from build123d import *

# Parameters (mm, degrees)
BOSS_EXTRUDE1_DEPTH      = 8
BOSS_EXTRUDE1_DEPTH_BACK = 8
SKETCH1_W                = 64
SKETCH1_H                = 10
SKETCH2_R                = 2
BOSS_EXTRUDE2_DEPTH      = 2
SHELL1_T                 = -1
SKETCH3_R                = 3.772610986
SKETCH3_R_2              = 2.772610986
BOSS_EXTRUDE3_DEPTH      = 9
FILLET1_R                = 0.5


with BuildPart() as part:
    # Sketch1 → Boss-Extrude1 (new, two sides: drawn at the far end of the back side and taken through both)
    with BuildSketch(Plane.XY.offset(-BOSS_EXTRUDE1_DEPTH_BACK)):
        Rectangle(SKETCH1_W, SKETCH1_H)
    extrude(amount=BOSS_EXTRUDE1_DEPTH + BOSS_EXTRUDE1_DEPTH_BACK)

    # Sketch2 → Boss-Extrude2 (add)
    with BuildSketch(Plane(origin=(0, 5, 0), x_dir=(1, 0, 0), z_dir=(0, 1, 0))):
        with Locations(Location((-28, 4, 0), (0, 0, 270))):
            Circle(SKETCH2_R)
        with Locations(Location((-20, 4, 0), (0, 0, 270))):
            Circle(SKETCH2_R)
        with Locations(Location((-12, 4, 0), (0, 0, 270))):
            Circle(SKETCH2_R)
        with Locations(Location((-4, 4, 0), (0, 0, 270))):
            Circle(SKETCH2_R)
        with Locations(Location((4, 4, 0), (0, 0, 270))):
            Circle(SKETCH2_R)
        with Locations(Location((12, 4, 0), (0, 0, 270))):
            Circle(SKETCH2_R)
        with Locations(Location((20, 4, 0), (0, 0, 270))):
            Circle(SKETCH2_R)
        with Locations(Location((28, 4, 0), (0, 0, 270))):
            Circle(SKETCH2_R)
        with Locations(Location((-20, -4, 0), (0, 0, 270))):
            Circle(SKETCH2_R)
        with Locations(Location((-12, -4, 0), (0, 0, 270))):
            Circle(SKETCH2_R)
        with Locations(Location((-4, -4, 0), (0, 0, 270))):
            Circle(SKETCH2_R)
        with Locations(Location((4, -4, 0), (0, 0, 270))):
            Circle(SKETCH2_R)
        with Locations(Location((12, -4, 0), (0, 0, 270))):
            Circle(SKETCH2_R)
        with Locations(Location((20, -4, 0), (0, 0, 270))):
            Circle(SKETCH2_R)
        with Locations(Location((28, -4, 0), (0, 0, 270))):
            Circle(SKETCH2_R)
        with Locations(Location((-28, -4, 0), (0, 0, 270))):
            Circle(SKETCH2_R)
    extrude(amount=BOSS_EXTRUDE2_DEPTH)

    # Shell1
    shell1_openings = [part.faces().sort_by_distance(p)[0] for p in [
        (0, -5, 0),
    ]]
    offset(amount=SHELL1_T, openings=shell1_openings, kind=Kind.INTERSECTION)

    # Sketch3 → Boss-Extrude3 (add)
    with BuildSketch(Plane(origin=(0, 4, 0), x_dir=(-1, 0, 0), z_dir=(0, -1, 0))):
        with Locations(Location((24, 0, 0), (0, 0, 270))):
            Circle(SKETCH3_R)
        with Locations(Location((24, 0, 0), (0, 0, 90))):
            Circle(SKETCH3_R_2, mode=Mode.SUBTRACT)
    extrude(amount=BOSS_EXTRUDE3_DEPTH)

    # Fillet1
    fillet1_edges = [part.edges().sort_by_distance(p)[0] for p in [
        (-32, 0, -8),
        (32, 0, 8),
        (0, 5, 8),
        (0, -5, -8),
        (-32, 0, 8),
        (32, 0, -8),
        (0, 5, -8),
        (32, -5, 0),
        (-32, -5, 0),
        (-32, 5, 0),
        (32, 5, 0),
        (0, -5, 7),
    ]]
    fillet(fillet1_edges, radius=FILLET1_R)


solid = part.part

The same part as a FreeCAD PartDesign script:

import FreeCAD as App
import Part
import Sketcher
Q = App.Units.Quantity


def edges_at(feature, points):
    """Names of the edges that pass closest to the given points."""
    edges = feature.Shape.Edges
    near = lambda p: min(range(len(edges)), key=lambda i: edges[i].distToShape(Part.Vertex(*p))[0])
    return sorted({f"Edge{near(p) + 1}" for p in points})


def faces_at(feature, points):
    """Names of the faces that lie closest to the given points."""
    faces = feature.Shape.Faces
    near = lambda p: min(range(len(faces)), key=lambda i: faces[i].distToShape(Part.Vertex(*p))[0])
    return sorted({f"Face{near(p) + 1}" for p in points})

doc = App.newDocument("Part")
body = doc.addObject("PartDesign::Body", "Body")

# Sketch on XY plane
sketch1 = body.newObject("Sketcher::SketchObject", "Sketch")
sketch1.AttachmentSupport = (doc.getObject("XY_Plane"), [""])
sketch1.MapMode = "FlatFace"
sketch1.addGeometry([
    Part.LineSegment(App.Vector(-32, 5, 0), App.Vector(-32, -5, 0)),
    Part.LineSegment(App.Vector(-32, -5, 0), App.Vector(32, -5, 0)),
    Part.LineSegment(App.Vector(32, -5, 0), App.Vector(32, 5, 0)),
    Part.LineSegment(App.Vector(32, 5, 0), App.Vector(-32, 5, 0)),
], False)
sketch1.addConstraint([
    Sketcher.Constraint("Coincident", 0, 2, 1, 1),
    Sketcher.Constraint("Coincident", 1, 2, 2, 1),
    Sketcher.Constraint("Coincident", 2, 2, 3, 1),
    Sketcher.Constraint("Coincident", 3, 2, 0, 1),
    Sketcher.Constraint("Vertical", 0),
    Sketcher.Constraint("Horizontal", 1),
    Sketcher.Constraint("Vertical", 2),
    Sketcher.Constraint("Horizontal", 3),
    Sketcher.Constraint("Symmetric", 0, 2, 2, 2, -1, 1),
    Sketcher.Constraint("DistanceX", 1, 1, 1, 2, Q("64 mm")),
    Sketcher.Constraint("DistanceY", 0, 2, 0, 1, Q("10 mm")),
])
pad1 = body.newObject("PartDesign::Pad", "Pad")
pad1.Profile = sketch1
pad1.Type = "TwoLengths"
pad1.Length = 8
pad1.Length2 = 8

# Sketch on XZ plane
sketch2 = body.newObject("Sketcher::SketchObject", "Sketch001")
sketch2.AttachmentSupport = (doc.getObject("XZ_Plane"), [""])
sketch2.MapMode = "FlatFace"
sketch2.AttachmentOffset = App.Placement(App.Vector(0, 0, -5), App.Rotation())
sketch2.addGeometry([
    Part.Circle(App.Vector(-28, -4, 0), App.Vector(0, 0, 1), 2),  # 0
    Part.Circle(App.Vector(-20, -4, 0), App.Vector(0, 0, 1), 2),  # 1
    Part.Circle(App.Vector(-12, -4, 0), App.Vector(0, 0, 1), 2),  # 2
    Part.Circle(App.Vector(-4, -4, 0), App.Vector(0, 0, 1), 2),  # 3
    Part.Circle(App.Vector(4, -4, 0), App.Vector(0, 0, 1), 2),  # 4
    Part.Circle(App.Vector(12, -4, 0), App.Vector(0, 0, 1), 2),  # 5
    Part.Circle(App.Vector(20, -4, 0), App.Vector(0, 0, 1), 2),  # 6
    Part.Circle(App.Vector(28, -4, 0), App.Vector(0, 0, 1), 2),  # 7
    Part.Circle(App.Vector(-20, 4, 0), App.Vector(0, 0, 1), 2),  # 8
    Part.Circle(App.Vector(-12, 4, 0), App.Vector(0, 0, 1), 2),  # 9
    Part.Circle(App.Vector(-4, 4, 0), App.Vector(0, 0, 1), 2),  # 10
    Part.Circle(App.Vector(4, 4, 0), App.Vector(0, 0, 1), 2),  # 11
    Part.Circle(App.Vector(12, 4, 0), App.Vector(0, 0, 1), 2),  # 12
    Part.Circle(App.Vector(20, 4, 0), App.Vector(0, 0, 1), 2),  # 13
    Part.Circle(App.Vector(28, 4, 0), App.Vector(0, 0, 1), 2),  # 14
    Part.Circle(App.Vector(-28, 4, 0), App.Vector(0, 0, 1), 2),  # 15
], False)
sketch2.addConstraint([
    Sketcher.Constraint("Equal", 0, 1),
    Sketcher.Constraint("Equal", 1, 2),
    Sketcher.Constraint("Equal", 2, 3),
    Sketcher.Constraint("Equal", 3, 4),
    Sketcher.Constraint("Equal", 4, 5),
    Sketcher.Constraint("Equal", 5, 6),
    Sketcher.Constraint("Equal", 6, 7),
    Sketcher.Constraint("Equal", 7, 8),
    Sketcher.Constraint("Equal", 8, 9),
    Sketcher.Constraint("Equal", 9, 10),
    Sketcher.Constraint("Equal", 10, 11),
    Sketcher.Constraint("Equal", 11, 12),
    Sketcher.Constraint("Equal", 12, 13),
    Sketcher.Constraint("Equal", 13, 14),
    Sketcher.Constraint("Equal", 14, 15),
    Sketcher.Constraint("Symmetric", 6, 3, 8, 3, -1, 1),
    Sketcher.Constraint("Symmetric", 5, 3, 9, 3, -1, 1),
    Sketcher.Constraint("Symmetric", 4, 3, 10, 3, -1, 1),
    Sketcher.Constraint("Symmetric", 3, 3, 11, 3, -1, 1),
    Sketcher.Constraint("Symmetric", 2, 3, 12, 3, -1, 1),
    Sketcher.Constraint("Symmetric", 1, 3, 13, 3, -1, 1),
    Sketcher.Constraint("Symmetric", 0, 3, 14, 3, -1, 1),
    Sketcher.Constraint("Symmetric", 7, 3, 15, 3, -1, 1),
    Sketcher.Constraint("Symmetric", 3, 3, 4, 3, -2),
    Sketcher.Constraint("Symmetric", 2, 3, 5, 3, -2),
    Sketcher.Constraint("Symmetric", 1, 3, 6, 3, -2),
    Sketcher.Constraint("Symmetric", 0, 3, 7, 3, -2),
    Sketcher.Constraint("Horizontal", 0, 3, 1, 3),
    Sketcher.Constraint("Horizontal", 1, 3, 2, 3),
    Sketcher.Constraint("Horizontal", 2, 3, 3, 3),
    Sketcher.Constraint("Diameter", 0, Q("4 mm")),
    Sketcher.Constraint("DistanceX", 0, 3, -1, 1, Q("28 mm")),
    Sketcher.Constraint("DistanceY", 0, 3, -1, 1, Q("4 mm")),
    Sketcher.Constraint("DistanceX", 1, 3, -1, 1, Q("20 mm")),
    Sketcher.Constraint("DistanceX", 2, 3, -1, 1, Q("12 mm")),
    Sketcher.Constraint("DistanceX", 3, 3, -1, 1, Q("4 mm")),
])
pad2 = body.newObject("PartDesign::Pad", "Pad001")
pad2.Profile = sketch2
pad2.Length = 2
pad2.Reversed = True
doc.recompute()

thickness = body.newObject("PartDesign::Thickness", "Thickness")
thickness.Base = (pad2, faces_at(pad2, [(0, -5, 0)]))
thickness.Value = 1
thickness.Reversed = True
thickness.Join = "Intersection"

# Sketch on XZ plane
sketch3 = body.newObject("Sketcher::SketchObject", "Sketch002")
sketch3.AttachmentSupport = (doc.getObject("XZ_Plane"), [""])
sketch3.MapMode = "FlatFace"
sketch3.AttachmentOffset = App.Placement(App.Vector(0, 0, -4), App.Rotation())
sketch3.addGeometry([
    Part.Circle(App.Vector(-24, 0, 0), App.Vector(0, 0, 1), 3.772611),
    Part.Circle(App.Vector(-24, 0, 0), App.Vector(0, 0, 1), 2.772611),
], False)
sketch3.addConstraint([
    Sketcher.Constraint("Coincident", 1, 3, 0, 3),
    Sketcher.Constraint("PointOnObject", 0, 3, -1),
    Sketcher.Constraint("DistanceX", 0, 3, -1, 1, Q("24 mm")),
    Sketcher.Constraint("Diameter", 0, Q("7.545222 mm")),
    Sketcher.Constraint("Diameter", 1, Q("5.545222 mm")),
])
pad3 = body.newObject("PartDesign::Pad", "Pad002")
pad3.Profile = sketch3
pad3.Length = 9
doc.recompute()

fillet = body.newObject("PartDesign::Fillet", "Fillet")
fillet.Base = (pad3, edges_at(pad3, [
    (-32, 0, -8),
    (32, 0, 8),
    (0, 5, 8),
    (0, -5, -8),
    (-32, 0, 8),
    (32, 0, -8),
    (0, 5, -8),
    (32, -5, 0),
    (-32, -5, 0),
    (-32, 5, 0),
    (32, 5, 0),
    (0, -5, 7),
]))
fillet.Radius = 0.5

doc.recompute()
